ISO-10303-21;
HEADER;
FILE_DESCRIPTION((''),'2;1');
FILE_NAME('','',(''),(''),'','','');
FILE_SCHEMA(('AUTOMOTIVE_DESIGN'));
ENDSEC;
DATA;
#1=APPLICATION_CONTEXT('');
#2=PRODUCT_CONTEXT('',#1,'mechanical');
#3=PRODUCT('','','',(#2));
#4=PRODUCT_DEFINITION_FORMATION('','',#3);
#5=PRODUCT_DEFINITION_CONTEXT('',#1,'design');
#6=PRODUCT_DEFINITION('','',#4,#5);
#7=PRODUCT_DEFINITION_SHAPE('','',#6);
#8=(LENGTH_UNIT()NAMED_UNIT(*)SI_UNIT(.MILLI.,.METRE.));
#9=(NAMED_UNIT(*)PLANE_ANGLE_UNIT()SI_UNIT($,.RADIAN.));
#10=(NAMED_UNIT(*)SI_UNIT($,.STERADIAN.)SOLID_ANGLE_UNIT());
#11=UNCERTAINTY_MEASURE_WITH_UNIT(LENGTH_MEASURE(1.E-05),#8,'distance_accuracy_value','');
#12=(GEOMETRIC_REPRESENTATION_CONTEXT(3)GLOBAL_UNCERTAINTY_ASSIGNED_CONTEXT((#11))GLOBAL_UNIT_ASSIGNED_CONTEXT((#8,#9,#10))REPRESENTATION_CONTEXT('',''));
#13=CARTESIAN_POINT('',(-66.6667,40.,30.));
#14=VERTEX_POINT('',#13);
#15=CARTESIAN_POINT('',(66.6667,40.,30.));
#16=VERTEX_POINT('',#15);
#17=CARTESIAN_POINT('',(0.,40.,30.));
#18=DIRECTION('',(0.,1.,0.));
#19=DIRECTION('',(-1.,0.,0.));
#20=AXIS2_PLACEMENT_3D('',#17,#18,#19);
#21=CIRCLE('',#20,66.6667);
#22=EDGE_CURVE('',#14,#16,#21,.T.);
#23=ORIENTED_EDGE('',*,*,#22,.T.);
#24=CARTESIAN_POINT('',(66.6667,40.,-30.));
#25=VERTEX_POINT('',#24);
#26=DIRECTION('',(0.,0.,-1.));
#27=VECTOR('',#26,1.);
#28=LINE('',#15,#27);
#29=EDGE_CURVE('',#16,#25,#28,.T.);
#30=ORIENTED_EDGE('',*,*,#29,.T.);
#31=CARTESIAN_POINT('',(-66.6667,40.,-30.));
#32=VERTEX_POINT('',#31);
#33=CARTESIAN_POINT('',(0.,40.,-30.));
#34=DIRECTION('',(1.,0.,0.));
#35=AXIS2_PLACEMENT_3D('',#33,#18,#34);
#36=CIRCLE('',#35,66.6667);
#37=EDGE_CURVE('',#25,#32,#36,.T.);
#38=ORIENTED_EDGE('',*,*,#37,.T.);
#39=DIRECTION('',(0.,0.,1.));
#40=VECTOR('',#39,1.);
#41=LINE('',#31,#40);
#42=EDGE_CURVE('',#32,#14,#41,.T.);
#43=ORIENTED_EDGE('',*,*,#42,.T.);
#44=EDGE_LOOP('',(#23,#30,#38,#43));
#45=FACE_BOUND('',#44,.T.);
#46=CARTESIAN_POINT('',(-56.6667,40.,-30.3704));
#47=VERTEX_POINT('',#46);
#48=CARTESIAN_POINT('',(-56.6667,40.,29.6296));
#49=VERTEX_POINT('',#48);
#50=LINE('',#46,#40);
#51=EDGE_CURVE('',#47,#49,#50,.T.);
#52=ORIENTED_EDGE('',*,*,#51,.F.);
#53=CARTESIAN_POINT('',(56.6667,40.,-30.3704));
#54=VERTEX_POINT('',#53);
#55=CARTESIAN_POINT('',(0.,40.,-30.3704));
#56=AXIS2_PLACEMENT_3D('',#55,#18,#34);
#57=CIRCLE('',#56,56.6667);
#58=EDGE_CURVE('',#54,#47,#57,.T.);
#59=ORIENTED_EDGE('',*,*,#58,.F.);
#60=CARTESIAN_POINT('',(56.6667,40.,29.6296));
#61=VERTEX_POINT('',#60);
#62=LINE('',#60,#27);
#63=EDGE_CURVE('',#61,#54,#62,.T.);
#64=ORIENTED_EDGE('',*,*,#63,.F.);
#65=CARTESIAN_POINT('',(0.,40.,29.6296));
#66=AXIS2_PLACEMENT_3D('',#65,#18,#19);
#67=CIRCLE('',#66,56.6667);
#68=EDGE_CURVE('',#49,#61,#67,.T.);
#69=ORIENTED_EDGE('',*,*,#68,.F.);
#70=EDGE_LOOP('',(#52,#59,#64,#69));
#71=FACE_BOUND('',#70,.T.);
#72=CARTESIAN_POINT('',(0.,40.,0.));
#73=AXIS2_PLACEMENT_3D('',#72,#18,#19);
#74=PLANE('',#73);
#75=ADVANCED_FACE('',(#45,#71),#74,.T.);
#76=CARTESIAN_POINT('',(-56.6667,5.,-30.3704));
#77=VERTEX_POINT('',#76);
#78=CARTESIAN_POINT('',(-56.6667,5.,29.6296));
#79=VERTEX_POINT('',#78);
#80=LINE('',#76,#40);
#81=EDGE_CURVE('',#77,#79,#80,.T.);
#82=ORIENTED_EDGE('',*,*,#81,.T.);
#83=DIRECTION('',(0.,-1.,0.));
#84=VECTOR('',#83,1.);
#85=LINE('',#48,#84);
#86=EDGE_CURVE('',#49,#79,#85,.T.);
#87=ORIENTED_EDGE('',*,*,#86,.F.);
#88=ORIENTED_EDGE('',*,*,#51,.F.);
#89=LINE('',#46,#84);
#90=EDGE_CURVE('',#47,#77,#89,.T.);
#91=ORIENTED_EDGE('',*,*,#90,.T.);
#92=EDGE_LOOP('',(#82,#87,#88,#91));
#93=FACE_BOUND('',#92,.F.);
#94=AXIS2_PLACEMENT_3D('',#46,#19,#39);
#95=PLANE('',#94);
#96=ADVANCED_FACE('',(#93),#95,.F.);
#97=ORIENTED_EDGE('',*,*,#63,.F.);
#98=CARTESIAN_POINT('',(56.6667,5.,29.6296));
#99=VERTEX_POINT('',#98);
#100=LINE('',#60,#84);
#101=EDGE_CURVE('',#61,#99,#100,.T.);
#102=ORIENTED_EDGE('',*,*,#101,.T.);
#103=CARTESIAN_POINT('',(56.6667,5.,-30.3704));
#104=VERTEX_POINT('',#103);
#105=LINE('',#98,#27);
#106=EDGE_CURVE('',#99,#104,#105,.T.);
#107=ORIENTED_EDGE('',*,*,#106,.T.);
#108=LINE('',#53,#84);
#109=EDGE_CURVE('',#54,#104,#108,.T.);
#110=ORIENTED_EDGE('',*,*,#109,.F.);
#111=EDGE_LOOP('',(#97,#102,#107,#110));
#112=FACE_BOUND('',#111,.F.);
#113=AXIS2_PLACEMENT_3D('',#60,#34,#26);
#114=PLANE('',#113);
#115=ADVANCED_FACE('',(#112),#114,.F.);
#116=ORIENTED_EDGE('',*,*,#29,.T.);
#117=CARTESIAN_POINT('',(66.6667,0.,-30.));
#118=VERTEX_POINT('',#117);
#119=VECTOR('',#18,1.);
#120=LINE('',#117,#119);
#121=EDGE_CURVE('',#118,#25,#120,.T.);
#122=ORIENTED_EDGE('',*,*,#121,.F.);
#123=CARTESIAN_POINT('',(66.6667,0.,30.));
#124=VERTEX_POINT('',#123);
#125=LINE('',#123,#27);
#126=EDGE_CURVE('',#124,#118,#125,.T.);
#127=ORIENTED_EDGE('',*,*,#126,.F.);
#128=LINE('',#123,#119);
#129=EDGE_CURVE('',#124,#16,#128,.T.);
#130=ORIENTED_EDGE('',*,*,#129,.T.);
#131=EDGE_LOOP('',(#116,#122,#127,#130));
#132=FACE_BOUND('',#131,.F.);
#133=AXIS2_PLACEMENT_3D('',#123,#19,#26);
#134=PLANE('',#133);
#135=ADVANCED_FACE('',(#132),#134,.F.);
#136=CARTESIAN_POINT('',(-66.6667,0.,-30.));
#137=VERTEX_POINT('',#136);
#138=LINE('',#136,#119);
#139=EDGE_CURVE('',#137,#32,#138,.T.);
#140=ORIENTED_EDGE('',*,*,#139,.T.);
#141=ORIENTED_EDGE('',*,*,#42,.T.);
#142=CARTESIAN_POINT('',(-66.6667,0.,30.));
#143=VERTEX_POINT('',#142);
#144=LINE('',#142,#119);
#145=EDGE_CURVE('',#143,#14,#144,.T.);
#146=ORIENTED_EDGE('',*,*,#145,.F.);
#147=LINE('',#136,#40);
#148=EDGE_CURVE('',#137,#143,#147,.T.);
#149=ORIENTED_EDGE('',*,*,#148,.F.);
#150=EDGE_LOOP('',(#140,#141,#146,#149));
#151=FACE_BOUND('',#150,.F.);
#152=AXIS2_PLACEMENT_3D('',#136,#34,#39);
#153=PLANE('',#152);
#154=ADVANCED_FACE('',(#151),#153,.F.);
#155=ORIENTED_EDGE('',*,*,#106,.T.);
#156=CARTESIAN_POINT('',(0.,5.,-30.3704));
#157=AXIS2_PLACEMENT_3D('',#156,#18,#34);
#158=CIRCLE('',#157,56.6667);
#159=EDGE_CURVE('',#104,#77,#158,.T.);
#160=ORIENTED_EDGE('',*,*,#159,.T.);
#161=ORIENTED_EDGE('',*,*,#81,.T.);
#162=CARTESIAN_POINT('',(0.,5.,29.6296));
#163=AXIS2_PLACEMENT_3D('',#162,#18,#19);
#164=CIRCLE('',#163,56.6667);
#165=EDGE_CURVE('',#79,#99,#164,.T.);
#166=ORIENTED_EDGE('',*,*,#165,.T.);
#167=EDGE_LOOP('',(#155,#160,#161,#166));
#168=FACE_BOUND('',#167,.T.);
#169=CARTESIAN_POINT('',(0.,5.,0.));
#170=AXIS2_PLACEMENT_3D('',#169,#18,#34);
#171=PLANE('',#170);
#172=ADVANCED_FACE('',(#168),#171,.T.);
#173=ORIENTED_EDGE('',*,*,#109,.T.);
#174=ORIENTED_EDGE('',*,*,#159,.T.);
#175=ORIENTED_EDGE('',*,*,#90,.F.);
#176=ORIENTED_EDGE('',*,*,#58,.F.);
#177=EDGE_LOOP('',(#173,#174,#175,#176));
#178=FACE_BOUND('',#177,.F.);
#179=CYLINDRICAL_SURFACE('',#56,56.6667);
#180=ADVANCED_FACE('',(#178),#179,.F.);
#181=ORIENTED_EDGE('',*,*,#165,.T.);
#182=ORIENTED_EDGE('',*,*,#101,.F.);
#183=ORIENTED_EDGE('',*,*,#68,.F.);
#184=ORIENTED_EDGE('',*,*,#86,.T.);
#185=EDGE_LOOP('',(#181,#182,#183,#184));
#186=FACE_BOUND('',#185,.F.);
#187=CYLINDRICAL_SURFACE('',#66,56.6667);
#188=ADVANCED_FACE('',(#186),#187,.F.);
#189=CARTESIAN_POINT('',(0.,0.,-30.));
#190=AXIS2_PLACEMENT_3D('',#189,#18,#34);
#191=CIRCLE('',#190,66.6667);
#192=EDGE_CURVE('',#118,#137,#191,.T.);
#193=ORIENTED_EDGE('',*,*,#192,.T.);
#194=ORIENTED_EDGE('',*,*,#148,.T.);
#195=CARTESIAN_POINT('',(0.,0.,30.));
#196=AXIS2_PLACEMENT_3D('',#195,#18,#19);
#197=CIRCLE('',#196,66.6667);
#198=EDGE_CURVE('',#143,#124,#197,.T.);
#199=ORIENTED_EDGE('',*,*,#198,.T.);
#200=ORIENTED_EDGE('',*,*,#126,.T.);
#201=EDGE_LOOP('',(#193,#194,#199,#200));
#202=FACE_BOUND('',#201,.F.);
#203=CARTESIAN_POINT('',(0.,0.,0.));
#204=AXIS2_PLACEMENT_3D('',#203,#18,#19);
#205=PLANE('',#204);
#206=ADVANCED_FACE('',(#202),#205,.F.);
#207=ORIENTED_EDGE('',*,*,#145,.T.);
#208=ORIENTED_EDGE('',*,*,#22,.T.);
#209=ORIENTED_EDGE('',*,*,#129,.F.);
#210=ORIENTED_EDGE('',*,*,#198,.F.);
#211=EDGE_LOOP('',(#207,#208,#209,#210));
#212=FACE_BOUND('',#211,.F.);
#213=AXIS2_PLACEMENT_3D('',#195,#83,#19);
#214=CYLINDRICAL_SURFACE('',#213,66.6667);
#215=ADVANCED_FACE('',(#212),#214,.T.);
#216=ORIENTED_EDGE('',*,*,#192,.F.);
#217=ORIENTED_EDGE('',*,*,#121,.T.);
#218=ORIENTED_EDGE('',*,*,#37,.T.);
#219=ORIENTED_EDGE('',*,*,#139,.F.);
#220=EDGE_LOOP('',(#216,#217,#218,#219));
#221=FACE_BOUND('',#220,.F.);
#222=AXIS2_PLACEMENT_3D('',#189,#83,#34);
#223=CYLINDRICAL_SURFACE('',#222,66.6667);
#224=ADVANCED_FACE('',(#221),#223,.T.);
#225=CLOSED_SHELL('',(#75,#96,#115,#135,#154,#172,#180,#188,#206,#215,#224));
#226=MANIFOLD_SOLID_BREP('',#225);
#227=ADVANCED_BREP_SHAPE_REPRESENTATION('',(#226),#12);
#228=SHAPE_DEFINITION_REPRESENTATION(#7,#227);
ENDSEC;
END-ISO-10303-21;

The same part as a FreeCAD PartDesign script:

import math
import FreeCAD as App
import Part
import Sketcher
Q = App.Units.Quantity

doc = App.newDocument("Part")
body = doc.addObject("PartDesign::Body", "Body")

# Sketch on XZ plane
sketch1 = body.newObject("Sketcher::SketchObject", "Sketch")
sketch1.AttachmentSupport = (doc.getObject("XZ_Plane"), [""])
sketch1.MapMode = "FlatFace"
sketch1.addGeometry([
    Part.LineSegment(App.Vector(-67, -30, 0), App.Vector(-67, 30, 0)),
    Part.ArcOfCircle(Part.Circle(App.Vector(0, 30, 0), App.Vector(0, 0, 1), 67), math.radians(0), math.radians(180)),
    Part.LineSegment(App.Vector(67, 30, 0), App.Vector(67, -30, 0)),
    Part.ArcOfCircle(Part.Circle(App.Vector(0, -30, 0), App.Vector(0, 0, 1), 67), math.radians(180), math.radians(360)),
], False)
sketch1.addConstraint([
    Sketcher.Constraint("Tangent", 0, 2, 1, 2),
    Sketcher.Constraint("Tangent", 1, 1, 2, 1),
    Sketcher.Constraint("Tangent", 2, 2, 3, 2),
    Sketcher.Constraint("Tangent", 3, 1, 0, 1),
    Sketcher.Constraint("Vertical", 0),
    Sketcher.Constraint("Vertical", 2),
    Sketcher.Constraint("Symmetric", 1, 3, 3, 3, -1, 1),
    Sketcher.Constraint("DistanceY", 0, 1, 0, 2, Q("60 mm")),
    Sketcher.Constraint("Radius", 1, Q("66.6667 mm")),
])
pad1 = body.newObject("PartDesign::Pad", "Pad")
pad1.Profile = sketch1
pad1.Length = 40
pad1.Reversed = True

# Sketch on XZ plane
sketch2 = body.newObject("Sketcher::SketchObject", "Sketch001")
sketch2.AttachmentSupport = (doc.getObject("XZ_Plane"), [""])
sketch2.MapMode = "FlatFace"
sketch2.AttachmentOffset = App.Placement(App.Vector(0, 0, -40), App.Rotation())
sketch2.addGeometry([
    Part.LineSegment(App.Vector(-57, -30, 0), App.Vector(-57, 30, 0)),
    Part.ArcOfCircle(Part.Circle(App.Vector(0, 30, 0), App.Vector(0, 0, 1), 57), math.radians(0), math.radians(180)),
    Part.LineSegment(App.Vector(57, 30, 0), App.Vector(57, -30, 0)),
    Part.ArcOfCircle(Part.Circle(App.Vector(0, -30, 0), App.Vector(0, 0, 1), 57), math.radians(180), math.radians(360)),
], False)
sketch2.addConstraint([
    Sketcher.Constraint("Tangent", 0, 2, 1, 2),
    Sketcher.Constraint("Tangent", 1, 1, 2, 1),
    Sketcher.Constraint("Tangent", 2, 2, 3, 2),
    Sketcher.Constraint("Tangent", 3, 1, 0, 1),
    Sketcher.Constraint("Vertical", 0),
    Sketcher.Constraint("Vertical", 2),
    Sketcher.Constraint("PointOnObject", 1, 3, -2),
    Sketcher.Constraint("DistanceY", 0, 1, 0, 2, Q("60 mm")),
    Sketcher.Constraint("Radius", 1, Q("56.6667 mm")),
    Sketcher.Constraint("DistanceY", -1, 1, 1, 3, Q("29.6296 mm")),
])
pocket1 = body.newObject("PartDesign::Pocket", "Pocket")
pocket1.Profile = sketch2
pocket1.Length = 35
pocket1.Reversed = True

doc.recompute()
